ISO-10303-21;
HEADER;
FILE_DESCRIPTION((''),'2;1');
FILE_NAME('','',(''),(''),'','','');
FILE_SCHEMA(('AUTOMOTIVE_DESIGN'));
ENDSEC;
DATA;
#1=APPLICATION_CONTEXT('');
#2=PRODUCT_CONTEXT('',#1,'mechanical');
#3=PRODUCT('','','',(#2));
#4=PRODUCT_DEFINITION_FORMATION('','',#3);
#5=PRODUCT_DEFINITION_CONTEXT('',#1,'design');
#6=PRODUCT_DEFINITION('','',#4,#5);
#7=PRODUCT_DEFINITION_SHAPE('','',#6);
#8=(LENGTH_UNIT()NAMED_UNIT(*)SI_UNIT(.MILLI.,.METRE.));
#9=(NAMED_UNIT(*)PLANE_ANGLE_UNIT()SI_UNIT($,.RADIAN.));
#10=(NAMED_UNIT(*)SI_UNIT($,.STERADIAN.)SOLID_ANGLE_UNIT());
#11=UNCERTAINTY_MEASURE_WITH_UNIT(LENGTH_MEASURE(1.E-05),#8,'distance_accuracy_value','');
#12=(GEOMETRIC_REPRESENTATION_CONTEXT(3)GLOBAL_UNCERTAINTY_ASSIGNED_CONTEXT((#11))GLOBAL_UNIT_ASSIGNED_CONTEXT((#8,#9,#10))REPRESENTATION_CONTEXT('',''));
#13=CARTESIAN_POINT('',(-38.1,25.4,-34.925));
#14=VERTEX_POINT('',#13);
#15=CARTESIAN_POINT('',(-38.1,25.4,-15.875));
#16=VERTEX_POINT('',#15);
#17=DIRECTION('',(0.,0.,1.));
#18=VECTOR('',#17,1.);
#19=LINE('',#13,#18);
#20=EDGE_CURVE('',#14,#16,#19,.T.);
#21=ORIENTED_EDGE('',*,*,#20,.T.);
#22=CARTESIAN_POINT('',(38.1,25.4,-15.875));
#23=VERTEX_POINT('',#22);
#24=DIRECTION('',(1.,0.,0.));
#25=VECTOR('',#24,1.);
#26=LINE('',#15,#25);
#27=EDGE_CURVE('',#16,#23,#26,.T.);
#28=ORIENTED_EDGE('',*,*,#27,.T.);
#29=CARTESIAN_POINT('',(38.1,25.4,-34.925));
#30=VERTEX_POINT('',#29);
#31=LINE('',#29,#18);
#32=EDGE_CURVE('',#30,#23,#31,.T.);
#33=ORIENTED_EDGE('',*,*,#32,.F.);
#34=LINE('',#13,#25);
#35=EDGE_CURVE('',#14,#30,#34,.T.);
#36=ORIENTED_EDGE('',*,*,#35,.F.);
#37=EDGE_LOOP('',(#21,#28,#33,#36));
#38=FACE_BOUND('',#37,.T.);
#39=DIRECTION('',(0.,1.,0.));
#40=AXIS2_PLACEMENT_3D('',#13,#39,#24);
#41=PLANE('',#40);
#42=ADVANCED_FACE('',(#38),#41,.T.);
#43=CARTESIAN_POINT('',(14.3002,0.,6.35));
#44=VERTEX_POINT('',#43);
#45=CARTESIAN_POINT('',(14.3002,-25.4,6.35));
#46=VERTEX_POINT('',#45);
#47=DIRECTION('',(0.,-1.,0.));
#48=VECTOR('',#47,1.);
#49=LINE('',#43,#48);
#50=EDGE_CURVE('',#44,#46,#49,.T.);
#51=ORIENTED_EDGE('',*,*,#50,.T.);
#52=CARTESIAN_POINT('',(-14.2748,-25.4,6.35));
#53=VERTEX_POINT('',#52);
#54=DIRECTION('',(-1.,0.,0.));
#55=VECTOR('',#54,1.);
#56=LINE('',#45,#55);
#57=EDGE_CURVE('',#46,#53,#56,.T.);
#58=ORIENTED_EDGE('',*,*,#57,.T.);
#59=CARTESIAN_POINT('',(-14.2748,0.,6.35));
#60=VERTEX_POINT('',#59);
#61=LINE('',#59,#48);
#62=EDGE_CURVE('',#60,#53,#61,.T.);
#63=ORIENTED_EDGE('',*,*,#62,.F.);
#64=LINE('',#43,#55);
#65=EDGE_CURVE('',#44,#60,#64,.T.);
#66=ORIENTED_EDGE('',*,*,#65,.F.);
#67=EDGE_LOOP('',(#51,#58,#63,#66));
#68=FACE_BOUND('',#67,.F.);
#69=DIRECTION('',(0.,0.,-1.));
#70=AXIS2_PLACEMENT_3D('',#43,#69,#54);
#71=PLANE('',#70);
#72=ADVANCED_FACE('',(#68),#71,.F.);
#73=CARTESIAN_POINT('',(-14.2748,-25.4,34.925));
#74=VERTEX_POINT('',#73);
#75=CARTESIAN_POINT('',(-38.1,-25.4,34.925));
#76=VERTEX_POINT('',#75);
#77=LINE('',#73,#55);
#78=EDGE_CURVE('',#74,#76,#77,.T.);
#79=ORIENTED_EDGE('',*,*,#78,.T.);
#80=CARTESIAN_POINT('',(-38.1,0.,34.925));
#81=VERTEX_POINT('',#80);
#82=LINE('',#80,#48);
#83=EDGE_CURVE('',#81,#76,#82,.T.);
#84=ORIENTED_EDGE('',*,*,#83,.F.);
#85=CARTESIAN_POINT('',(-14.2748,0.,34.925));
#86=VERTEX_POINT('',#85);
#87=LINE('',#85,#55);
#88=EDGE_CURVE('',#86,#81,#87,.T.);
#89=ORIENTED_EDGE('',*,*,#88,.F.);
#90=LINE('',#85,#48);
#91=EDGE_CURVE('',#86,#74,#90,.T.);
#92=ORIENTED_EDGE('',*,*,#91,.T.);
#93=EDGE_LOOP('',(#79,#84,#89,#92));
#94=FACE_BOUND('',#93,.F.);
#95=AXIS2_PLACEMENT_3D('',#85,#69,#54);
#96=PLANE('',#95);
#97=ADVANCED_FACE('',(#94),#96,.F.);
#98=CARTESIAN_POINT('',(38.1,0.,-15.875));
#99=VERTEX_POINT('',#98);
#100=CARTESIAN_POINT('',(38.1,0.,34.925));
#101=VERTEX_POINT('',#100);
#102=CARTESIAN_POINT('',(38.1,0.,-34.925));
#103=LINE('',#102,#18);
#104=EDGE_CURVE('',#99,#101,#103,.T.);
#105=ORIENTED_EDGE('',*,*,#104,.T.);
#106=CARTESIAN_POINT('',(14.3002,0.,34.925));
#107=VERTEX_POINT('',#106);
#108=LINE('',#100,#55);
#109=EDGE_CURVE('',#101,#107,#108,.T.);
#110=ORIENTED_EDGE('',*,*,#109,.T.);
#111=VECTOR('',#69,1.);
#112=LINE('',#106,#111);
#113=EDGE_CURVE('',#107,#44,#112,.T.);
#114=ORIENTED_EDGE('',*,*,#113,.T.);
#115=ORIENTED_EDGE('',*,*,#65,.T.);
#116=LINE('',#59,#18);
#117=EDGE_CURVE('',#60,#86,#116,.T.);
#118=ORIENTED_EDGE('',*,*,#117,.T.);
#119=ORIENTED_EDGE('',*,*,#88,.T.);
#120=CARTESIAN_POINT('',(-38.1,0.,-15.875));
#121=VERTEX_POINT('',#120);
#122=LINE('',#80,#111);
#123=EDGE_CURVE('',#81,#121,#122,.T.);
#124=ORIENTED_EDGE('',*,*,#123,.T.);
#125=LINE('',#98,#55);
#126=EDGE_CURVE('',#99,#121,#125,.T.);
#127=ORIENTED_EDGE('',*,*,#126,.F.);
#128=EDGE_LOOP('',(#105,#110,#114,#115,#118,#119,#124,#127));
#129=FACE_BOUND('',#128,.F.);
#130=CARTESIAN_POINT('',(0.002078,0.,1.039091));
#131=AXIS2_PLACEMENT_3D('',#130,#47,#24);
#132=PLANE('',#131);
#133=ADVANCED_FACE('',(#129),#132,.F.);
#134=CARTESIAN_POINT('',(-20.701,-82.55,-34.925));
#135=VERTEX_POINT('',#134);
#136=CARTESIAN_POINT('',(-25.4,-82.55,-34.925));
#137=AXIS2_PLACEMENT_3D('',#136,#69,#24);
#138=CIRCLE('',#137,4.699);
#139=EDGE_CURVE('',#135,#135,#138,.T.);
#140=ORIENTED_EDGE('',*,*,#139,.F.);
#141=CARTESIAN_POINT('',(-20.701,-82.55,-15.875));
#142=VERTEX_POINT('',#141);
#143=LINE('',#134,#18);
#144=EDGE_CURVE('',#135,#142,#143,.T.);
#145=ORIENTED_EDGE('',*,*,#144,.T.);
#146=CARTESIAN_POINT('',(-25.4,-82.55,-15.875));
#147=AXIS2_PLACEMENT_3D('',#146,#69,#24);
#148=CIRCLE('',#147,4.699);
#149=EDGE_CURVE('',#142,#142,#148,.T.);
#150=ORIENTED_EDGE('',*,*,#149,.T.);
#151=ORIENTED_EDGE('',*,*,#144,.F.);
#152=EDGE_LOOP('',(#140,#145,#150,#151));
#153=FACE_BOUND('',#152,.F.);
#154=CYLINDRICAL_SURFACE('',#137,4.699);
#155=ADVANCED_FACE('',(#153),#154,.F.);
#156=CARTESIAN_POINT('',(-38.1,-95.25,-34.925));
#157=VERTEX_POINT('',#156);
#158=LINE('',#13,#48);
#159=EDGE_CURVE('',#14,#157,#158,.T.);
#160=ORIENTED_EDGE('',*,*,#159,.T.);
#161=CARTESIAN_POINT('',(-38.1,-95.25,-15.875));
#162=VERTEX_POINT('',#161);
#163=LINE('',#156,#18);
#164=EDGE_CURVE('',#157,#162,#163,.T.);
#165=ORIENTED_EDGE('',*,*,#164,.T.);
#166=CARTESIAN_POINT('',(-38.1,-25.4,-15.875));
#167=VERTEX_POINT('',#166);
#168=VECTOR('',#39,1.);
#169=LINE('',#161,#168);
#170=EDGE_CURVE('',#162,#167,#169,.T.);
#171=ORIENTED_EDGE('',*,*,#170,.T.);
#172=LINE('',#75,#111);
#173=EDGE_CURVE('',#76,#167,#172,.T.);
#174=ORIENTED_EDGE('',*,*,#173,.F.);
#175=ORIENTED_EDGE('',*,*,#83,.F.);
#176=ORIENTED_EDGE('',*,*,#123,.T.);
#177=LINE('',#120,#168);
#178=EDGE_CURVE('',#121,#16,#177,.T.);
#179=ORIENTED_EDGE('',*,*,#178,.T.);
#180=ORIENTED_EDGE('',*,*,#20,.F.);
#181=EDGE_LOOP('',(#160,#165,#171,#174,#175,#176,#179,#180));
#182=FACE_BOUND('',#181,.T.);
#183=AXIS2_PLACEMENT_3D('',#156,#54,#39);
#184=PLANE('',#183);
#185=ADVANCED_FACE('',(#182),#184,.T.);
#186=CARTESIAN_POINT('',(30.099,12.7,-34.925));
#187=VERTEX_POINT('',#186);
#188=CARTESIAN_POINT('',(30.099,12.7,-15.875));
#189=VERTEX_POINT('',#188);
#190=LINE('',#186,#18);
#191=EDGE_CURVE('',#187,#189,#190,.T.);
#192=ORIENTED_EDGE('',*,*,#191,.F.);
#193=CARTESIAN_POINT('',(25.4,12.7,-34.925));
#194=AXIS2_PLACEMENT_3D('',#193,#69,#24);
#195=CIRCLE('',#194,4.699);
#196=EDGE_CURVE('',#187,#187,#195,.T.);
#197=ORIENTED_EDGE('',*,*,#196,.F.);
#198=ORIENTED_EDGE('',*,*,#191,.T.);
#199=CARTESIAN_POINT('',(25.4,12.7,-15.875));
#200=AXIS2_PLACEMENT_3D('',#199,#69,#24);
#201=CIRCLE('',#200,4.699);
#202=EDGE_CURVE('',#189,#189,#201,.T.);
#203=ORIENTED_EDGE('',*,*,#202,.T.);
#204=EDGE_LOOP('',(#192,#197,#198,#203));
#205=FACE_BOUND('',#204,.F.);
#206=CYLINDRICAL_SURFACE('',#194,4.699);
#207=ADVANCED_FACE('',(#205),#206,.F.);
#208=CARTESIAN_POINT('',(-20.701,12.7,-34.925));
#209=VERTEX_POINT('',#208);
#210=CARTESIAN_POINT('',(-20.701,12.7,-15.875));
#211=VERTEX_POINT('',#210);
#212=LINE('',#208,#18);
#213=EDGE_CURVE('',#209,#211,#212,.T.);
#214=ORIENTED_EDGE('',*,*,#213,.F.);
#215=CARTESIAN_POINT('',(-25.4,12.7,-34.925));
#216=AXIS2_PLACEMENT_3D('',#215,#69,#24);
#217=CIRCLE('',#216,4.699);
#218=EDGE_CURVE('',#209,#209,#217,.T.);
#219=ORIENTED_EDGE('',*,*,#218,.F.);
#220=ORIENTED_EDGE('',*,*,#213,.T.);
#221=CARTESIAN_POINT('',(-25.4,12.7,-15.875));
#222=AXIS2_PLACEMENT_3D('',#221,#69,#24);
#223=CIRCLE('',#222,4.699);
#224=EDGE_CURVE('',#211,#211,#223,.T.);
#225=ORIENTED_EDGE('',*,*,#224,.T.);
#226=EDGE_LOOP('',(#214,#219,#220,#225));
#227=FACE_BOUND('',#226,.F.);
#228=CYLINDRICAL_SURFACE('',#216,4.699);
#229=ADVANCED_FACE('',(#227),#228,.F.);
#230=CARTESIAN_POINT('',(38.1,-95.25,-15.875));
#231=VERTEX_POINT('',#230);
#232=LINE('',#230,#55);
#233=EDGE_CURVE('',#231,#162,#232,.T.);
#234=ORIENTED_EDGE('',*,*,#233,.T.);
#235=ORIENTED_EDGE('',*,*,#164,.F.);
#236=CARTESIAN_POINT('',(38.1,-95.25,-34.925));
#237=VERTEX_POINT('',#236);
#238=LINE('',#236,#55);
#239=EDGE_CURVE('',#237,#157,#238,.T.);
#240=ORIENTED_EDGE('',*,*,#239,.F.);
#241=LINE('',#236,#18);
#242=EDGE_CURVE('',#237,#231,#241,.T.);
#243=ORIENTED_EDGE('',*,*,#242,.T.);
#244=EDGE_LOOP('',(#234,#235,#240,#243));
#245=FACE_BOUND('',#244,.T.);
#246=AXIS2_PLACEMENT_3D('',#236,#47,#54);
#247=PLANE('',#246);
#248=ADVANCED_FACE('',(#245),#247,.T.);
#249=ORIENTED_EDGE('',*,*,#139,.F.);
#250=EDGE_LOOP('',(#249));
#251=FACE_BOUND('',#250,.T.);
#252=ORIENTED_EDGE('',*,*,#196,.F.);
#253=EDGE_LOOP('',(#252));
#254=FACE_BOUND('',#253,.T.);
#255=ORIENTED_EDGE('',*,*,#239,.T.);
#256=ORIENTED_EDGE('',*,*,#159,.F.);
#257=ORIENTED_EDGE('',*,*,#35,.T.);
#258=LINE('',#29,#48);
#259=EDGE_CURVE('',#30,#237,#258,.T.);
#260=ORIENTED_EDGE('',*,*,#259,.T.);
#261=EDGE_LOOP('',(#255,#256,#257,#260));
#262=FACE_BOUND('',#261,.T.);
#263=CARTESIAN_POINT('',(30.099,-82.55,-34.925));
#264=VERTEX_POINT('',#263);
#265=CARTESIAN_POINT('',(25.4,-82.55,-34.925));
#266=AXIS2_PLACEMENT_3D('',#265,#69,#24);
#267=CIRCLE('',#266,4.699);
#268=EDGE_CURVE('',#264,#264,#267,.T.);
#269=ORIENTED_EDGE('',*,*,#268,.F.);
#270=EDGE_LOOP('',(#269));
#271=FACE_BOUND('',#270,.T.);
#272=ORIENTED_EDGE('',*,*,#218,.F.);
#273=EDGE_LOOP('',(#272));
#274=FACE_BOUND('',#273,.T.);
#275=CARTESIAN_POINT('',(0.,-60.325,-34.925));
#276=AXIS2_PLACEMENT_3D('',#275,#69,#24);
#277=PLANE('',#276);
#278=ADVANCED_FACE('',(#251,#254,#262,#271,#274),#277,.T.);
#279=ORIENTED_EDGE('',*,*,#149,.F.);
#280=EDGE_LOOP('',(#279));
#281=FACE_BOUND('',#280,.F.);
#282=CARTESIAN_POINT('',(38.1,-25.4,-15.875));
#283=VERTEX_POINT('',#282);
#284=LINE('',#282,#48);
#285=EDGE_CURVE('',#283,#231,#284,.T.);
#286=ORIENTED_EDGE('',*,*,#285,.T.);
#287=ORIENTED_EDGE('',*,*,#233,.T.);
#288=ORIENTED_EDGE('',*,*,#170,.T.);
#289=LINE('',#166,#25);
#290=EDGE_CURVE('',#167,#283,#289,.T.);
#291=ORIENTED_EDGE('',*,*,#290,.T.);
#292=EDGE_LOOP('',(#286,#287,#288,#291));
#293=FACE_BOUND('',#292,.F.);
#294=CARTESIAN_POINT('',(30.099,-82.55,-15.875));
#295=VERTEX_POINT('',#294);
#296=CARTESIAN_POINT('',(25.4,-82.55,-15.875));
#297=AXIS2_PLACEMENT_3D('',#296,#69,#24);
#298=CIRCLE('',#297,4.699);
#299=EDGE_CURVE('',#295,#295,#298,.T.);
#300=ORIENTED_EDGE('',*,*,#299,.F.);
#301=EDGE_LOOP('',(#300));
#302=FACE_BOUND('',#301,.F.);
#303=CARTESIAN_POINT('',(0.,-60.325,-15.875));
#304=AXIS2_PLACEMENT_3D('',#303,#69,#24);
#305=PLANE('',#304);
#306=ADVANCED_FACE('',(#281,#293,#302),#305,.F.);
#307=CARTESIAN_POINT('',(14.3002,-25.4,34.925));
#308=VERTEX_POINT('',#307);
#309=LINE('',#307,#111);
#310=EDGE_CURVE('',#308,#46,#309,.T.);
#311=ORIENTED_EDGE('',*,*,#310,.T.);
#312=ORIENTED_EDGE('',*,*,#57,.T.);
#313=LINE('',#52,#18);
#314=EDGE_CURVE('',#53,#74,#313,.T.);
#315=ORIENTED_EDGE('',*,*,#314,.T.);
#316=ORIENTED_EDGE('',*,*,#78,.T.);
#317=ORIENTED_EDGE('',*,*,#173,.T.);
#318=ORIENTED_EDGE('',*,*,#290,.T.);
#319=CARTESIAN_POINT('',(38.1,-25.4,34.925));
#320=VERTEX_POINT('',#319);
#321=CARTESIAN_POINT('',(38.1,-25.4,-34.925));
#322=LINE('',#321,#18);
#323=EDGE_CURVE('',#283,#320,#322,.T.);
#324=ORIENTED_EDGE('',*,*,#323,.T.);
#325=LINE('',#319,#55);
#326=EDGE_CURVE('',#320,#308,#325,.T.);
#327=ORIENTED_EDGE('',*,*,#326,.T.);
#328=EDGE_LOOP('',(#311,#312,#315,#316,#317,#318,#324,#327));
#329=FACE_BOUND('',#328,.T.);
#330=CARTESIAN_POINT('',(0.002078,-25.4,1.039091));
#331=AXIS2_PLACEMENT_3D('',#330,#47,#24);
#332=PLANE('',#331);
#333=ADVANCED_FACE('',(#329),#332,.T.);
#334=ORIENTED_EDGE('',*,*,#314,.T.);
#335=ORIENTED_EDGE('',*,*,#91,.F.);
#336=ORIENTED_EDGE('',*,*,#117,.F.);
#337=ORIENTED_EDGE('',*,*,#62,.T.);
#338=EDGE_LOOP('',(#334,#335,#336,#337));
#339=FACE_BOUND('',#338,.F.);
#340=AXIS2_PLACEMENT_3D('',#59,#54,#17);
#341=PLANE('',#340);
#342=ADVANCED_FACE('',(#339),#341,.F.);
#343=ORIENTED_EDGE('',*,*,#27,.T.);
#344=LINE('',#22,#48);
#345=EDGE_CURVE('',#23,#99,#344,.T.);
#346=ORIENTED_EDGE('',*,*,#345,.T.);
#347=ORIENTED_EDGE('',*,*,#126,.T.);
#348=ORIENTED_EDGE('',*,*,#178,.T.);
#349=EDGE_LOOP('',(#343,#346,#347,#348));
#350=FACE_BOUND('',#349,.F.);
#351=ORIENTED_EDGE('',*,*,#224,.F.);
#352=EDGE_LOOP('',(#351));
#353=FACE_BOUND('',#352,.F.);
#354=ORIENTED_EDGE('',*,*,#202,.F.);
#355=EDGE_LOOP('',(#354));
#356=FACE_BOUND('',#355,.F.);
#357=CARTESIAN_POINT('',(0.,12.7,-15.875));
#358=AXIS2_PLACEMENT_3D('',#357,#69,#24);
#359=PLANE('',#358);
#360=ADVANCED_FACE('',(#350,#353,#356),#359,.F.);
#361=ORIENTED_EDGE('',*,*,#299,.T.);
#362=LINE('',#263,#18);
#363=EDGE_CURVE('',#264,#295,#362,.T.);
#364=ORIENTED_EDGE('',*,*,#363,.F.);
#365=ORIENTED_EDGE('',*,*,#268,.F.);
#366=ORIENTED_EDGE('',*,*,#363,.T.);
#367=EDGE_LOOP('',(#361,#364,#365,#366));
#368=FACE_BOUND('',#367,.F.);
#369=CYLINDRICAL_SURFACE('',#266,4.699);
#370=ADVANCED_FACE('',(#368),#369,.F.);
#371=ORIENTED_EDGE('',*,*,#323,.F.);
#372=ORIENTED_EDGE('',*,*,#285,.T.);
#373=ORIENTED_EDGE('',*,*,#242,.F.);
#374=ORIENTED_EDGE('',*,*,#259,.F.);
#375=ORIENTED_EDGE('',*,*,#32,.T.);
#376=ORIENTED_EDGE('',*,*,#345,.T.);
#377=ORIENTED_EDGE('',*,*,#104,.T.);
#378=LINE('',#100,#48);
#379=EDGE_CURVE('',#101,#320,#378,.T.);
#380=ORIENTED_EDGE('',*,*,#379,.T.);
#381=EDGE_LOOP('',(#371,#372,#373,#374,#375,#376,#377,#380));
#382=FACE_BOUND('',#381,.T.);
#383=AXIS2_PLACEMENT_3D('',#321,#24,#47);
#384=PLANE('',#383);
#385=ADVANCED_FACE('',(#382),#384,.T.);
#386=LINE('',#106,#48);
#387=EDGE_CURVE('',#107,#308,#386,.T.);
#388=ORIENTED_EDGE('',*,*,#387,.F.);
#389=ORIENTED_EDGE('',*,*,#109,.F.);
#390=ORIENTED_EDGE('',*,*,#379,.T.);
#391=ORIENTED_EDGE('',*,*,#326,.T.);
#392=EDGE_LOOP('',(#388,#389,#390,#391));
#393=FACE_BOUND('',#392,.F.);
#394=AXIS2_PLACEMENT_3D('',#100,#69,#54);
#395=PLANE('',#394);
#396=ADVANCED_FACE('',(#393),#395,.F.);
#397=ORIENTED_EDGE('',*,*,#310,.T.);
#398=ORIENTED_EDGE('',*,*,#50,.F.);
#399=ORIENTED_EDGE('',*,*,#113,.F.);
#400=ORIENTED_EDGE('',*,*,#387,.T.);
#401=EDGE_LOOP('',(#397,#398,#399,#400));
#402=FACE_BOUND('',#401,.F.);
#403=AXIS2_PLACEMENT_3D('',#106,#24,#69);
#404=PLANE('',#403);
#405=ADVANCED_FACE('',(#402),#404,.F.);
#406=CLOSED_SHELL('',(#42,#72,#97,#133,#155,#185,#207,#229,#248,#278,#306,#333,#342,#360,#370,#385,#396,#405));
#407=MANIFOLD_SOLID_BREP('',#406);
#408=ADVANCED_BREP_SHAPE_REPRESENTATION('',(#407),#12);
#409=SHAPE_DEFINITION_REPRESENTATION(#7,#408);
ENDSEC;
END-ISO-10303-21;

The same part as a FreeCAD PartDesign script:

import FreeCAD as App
import Part
import Sketcher

V = App.Vector
Q = App.Units.Quantity


def add_polygon(sketch, points):
    """Adds a closed chain of lines whose ends are joined by coincident constraints."""
    first, n = sketch.GeometryCount, len(points)
    for a, b in zip(points, points[1:] + points[:1]):
        sketch.addGeometry(Part.LineSegment(App.Vector(*a, 0), App.Vector(*b, 0)), False)
    for i in range(n):
        sketch.addConstraint(Sketcher.Constraint("Coincident", first + i, 2, first + (i + 1) % n, 1))

doc = App.newDocument("Part")
body = doc.addObject("PartDesign::Body", "Body")

# Sketch on XZ plane
sketch1 = body.newObject("Sketcher::SketchObject", "Sketch")
sketch1.AttachmentSupport = (doc.getObject("XZ_Plane"), [""])
sketch1.MapMode = "FlatFace"
add_polygon(sketch1, [(-38.1, -34.925), (38.1, -34.925), (38.1, 34.925), (14.3002, 34.925), (14.3002, 6.35), (-14.2748, 6.35), (-14.2748, 34.925), (-38.1, 34.925)])  # lines 0-7
sketch1.addConstraint(Sketcher.Constraint("Horizontal", 0))
sketch1.addConstraint(Sketcher.Constraint("Vertical", 1))
sketch1.addConstraint(Sketcher.Constraint("Horizontal", 2))
sketch1.addConstraint(Sketcher.Constraint("Vertical", 3))
sketch1.addConstraint(Sketcher.Constraint("Horizontal", 4))
sketch1.addConstraint(Sketcher.Constraint("Vertical", 5))
sketch1.addConstraint(Sketcher.Constraint("Horizontal", 6))
sketch1.addConstraint(Sketcher.Constraint("Vertical", 7))
sketch1.addConstraint(Sketcher.Constraint("Symmetric", 0, 2, 6, 2, -1, 1))
sketch1.addConstraint(Sketcher.Constraint("Horizontal", 2, 2, 5, 2))
sketch1.addConstraint(Sketcher.Constraint("Equal", 4, 3))
sketch1.addConstraint(Sketcher.Constraint("DistanceX", 0, 1, 0, 2, Q("3 in")))
sketch1.addConstraint(Sketcher.Constraint("DistanceY", 1, 1, 1, 2, Q("2.75 in")))
sketch1.addConstraint(Sketcher.Constraint("DistanceX", 2, 2, 2, 1, Q("0.937 in")))
sketch1.addConstraint(Sketcher.Constraint("DistanceX", 4, 2, 4, 1, Q("1.125 in")))
pad1 = body.newObject("PartDesign::Pad", "Pad")
pad1.Profile = sketch1
pad1.Length = Q("1 in")

# Sketch on XY plane
sketch2 = body.newObject("Sketcher::SketchObject", "Sketch001")
sketch2.AttachmentSupport = (doc.getObject("XY_Plane"), [""])
sketch2.MapMode = "FlatFace"
sketch2.AttachmentOffset = App.Placement(V(0, 0, -1.375 * 25.4), App.Rotation())
add_polygon(sketch2, [(-38.1, -25.4), (38.1, -25.4), (38.1, -95.25), (-38.1, -95.25)])  # lines 0-3
sketch2.addGeometry(Part.Circle(V(-25.4, -82.55, 0), V(0, 0, 1), 4.699), False)  # 4
sketch2.addGeometry(Part.Circle(V(25.4, -82.55, 0), V(0, 0, 1), 4.699), False)  # 5
add_polygon(sketch2, [(38.1, 0), (-38.1, 0), (-38.1, 25.4), (38.1, 25.4)])  # lines 6-9
sketch2.addGeometry(Part.Circle(V(-25.4, 12.7, 0), V(0, 0, 1), 4.699), False)  # 10
sketch2.addGeometry(Part.Circle(V(25.4, 12.7, 0), V(0, 0, 1), 4.699), False)  # 11
sketch2.addConstraint(Sketcher.Constraint("Horizontal", 0))
sketch2.addConstraint(Sketcher.Constraint("Vertical", 1))
sketch2.addConstraint(Sketcher.Constraint("Horizontal", 2))
sketch2.addConstraint(Sketcher.Constraint("Vertical", 3))
sketch2.addConstraint(Sketcher.Constraint("Horizontal", 6))
sketch2.addConstraint(Sketcher.Constraint("Vertical", 7))
sketch2.addConstraint(Sketcher.Constraint("Horizontal", 8))
sketch2.addConstraint(Sketcher.Constraint("Vertical", 9))
sketch2.addConstraint(Sketcher.Constraint("Equal", 4, 5))
sketch2.addConstraint(Sketcher.Constraint("Equal", 5, 10))
sketch2.addConstraint(Sketcher.Constraint("Equal", 10, 11))
sketch2.addConstraint(Sketcher.Constraint("Symmetric", 0, 2, 7, 2, -1, 1))
sketch2.addConstraint(Sketcher.Constraint("Symmetric", 6, 2, 9, 2, -1, 1))
sketch2.addConstraint(Sketcher.Constraint("Symmetric", 4, 3, 5, 3, -2))
sketch2.addConstraint(Sketcher.Constraint("Symmetric", 10, 3, 11, 3, -2))
sketch2.addConstraint(Sketcher.Constraint("Vertical", 4, 3, 10, 3))
sketch2.addConstraint(Sketcher.Constraint("Vertical", 3, 2, 6, 2))
sketch2.addConstraint(Sketcher.Constraint("Diameter", 4, Q("0.37 in")))
sketch2.addConstraint(Sketcher.Constraint("DistanceX", 0, 1, 0, 2, Q("3 in")))
sketch2.addConstraint(Sketcher.Constraint("DistanceY", 7, 1, 7, 2, Q("1 in")))
sketch2.addConstraint(Sketcher.Constraint("DistanceX", 4, 3, -1, 1, Q("1 in")))
sketch2.addConstraint(Sketcher.Constraint("DistanceY", 1, 2, 1, 1, Q("2.75 in")))
sketch2.addConstraint(Sketcher.Constraint("DistanceY", -1, 1, 10, 3, Q("0.5 in")))
sketch2.addConstraint(Sketcher.Constraint("DistanceY", 1, 2, 5, 3, Q("0.5 in")))
pad2 = body.newObject("PartDesign::Pad", "Pad001")
pad2.Profile = sketch2
pad2.Length = Q("0.75 in")

doc.recompute()
